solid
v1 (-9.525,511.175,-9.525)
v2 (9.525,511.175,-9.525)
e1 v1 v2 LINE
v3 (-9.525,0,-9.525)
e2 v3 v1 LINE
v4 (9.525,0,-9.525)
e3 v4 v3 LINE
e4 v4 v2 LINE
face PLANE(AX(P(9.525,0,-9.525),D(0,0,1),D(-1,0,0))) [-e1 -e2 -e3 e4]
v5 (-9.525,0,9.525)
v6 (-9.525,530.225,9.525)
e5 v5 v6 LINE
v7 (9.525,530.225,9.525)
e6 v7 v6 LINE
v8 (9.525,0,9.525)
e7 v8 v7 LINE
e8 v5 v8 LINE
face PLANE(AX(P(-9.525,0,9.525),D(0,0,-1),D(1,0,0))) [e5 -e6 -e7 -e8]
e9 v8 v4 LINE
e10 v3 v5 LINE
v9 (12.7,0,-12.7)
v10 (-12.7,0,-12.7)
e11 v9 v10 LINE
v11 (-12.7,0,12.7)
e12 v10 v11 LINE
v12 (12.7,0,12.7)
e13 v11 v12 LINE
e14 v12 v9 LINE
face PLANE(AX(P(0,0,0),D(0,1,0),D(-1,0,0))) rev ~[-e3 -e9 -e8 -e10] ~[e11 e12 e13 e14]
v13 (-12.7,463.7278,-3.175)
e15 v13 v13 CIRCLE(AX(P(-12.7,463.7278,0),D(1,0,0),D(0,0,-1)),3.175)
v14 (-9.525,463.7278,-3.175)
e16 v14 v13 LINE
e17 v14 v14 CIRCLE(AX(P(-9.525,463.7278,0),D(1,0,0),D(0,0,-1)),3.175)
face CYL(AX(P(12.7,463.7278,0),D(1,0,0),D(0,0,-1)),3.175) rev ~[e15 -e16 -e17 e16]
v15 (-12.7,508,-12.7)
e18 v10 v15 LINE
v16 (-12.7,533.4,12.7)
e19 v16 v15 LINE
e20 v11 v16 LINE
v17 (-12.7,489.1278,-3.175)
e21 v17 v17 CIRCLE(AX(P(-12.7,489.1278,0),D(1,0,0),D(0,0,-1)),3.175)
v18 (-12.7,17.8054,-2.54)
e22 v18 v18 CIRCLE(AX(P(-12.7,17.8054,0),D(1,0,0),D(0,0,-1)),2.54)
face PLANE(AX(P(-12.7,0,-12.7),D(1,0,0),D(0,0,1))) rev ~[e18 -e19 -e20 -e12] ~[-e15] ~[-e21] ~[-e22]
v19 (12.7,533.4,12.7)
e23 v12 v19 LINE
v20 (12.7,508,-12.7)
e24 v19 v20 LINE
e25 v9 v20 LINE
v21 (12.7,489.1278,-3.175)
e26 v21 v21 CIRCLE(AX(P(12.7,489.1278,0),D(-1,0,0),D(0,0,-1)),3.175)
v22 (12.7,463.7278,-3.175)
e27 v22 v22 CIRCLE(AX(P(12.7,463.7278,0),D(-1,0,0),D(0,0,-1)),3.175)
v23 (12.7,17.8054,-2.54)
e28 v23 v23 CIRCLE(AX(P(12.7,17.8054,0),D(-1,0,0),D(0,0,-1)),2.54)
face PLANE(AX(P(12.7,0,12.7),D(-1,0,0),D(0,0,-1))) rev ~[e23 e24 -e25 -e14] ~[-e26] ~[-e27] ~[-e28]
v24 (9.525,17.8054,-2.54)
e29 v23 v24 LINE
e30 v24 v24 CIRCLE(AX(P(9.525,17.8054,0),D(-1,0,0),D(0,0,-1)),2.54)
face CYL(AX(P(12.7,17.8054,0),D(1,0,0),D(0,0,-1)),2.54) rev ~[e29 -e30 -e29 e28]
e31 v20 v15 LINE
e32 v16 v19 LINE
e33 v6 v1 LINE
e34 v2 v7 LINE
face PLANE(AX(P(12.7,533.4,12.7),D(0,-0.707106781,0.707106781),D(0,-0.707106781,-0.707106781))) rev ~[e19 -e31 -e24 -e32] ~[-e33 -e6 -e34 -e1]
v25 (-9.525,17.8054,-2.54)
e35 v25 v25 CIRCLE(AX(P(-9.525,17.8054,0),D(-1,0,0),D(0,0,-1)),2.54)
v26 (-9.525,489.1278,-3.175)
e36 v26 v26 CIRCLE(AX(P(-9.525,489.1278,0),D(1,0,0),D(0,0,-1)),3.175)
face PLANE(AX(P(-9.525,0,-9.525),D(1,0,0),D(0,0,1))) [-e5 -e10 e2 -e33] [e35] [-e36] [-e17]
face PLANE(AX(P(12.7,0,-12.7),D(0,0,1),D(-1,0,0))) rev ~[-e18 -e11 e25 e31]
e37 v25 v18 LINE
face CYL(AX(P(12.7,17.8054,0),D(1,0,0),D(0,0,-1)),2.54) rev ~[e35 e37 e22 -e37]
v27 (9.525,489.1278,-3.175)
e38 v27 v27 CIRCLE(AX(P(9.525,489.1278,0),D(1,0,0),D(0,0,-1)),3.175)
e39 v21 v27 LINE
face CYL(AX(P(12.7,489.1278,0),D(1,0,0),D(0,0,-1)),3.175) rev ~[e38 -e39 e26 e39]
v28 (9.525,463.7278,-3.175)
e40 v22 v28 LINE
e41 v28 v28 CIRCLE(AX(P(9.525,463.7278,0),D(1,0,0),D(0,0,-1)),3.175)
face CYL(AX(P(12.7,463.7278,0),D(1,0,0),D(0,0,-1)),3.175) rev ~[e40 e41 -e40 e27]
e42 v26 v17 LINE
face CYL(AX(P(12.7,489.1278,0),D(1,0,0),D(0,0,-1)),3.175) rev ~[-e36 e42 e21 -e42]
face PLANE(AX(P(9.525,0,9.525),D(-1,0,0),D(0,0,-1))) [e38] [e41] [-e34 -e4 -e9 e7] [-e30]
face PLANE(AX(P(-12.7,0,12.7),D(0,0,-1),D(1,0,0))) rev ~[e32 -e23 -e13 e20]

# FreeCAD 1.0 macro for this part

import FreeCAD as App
import Part
import Sketcher
Q = App.Units.Quantity


def add_polygon(sketch, points):
    """Adds a closed chain of lines whose ends are joined by coincident constraints."""
    first, n = sketch.GeometryCount, len(points)
    for a, b in zip(points, points[1:] + points[:1]):
        sketch.addGeometry(Part.LineSegment(App.Vector(*a, 0), App.Vector(*b, 0)), False)
    for i in range(n):
        sketch.addConstraint(Sketcher.Constraint("Coincident", first + i, 2, first + (i + 1) % n, 1))

doc = App.newDocument("Part")
body = doc.addObject("PartDesign::Body", "Body")

# Sketch on XZ plane
sketch1 = doc.addObject("Sketcher::SketchObject", "Sketch")
body.addObject(sketch1)
sketch1.AttachmentSupport = (doc.XZ_Plane, [""])
sketch1.MapMode = "FlatFace"
add_polygon(sketch1, [(13, 13), (13, -13), (-13, -13), (-13, 13)])  # lines 0-3
add_polygon(sketch1, [(-10, -10), (10, -10), (10, 10), (-10, 10)])  # lines 4-7
sketch1.addConstraint(Sketcher.Constraint("Vertical", 0))
sketch1.addConstraint(Sketcher.Constraint("Horizontal", 1))
sketch1.addConstraint(Sketcher.Constraint("Vertical", 2))
sketch1.addConstraint(Sketcher.Constraint("Horizontal", 3))
sketch1.addConstraint(Sketcher.Constraint("Horizontal", 4))
sketch1.addConstraint(Sketcher.Constraint("Vertical", 5))
sketch1.addConstraint(Sketcher.Constraint("Horizontal", 6))
sketch1.addConstraint(Sketcher.Constraint("Vertical", 7))
sketch1.addConstraint(Sketcher.Constraint("Symmetric", 0, 2, 2, 2, -1, 1))
sketch1.addConstraint(Sketcher.Constraint("Symmetric", 4, 2, 6, 2, -1, 1))
sketch1.addConstraint(Sketcher.Constraint("Equal", 3, 0))
sketch1.addConstraint(Sketcher.Constraint("Equal", 6, 5))
sketch1.addConstraint(Sketcher.Constraint("DistanceX", 1, 2, 1, 1, Q("1 in")))
sketch1.addConstraint(Sketcher.Constraint("DistanceX", 4, 1, 4, 2, Q("0.75 in")))
pad1 = doc.addObject("PartDesign::Pad", "Pad")
body.addObject(pad1)
pad1.Profile = sketch1
pad1.Length = Q("21 in")
pad1.Reversed = True

# Sketch on YZ plane
sketch2 = doc.addObject("Sketcher::SketchObject", "Sketch001")
body.addObject(sketch2)
sketch2.AttachmentSupport = (doc.YZ_Plane, [""])
sketch2.MapMode = "FlatFace"
sketch2.AttachmentOffset = App.Placement(App.Vector(0, 0, 0.5 * 25.4), App.Rotation())
add_polygon(sketch2, [(533, 13), (508, -13), (533, -13)])  # lines 0-2
sketch2.addConstraint(Sketcher.Constraint("Horizontal", 1))
sketch2.addConstraint(Sketcher.Constraint("Vertical", 2))
sketch2.addConstraint(Sketcher.Constraint("Equal", 1, 2))
sketch2.addConstraint(Sketcher.Constraint("DistanceX", 1, 1, 1, 2, Q("1 in")))
sketch2.addConstraint(Sketcher.Constraint("DistanceX", -1, 1, 0, 2, Q("20 in")))
sketch2.addConstraint(Sketcher.Constraint("DistanceY", 0, 2, -1, 1, Q("0.5 in")))
pocket1 = doc.addObject("PartDesign::Pocket", "Pocket")
body.addObject(pocket1)
pocket1.Profile = sketch2
pocket1.Length = Q("1 in")

# Sketch on YZ plane
sketch3 = doc.addObject("Sketcher::SketchObject", "Sketch002")
body.addObject(sketch3)
sketch3.AttachmentSupport = (doc.YZ_Plane, [""])
sketch3.MapMode = "FlatFace"
sketch3.AttachmentOffset = App.Placement(App.Vector(0, 0, 0.5 * 25.4), App.Rotation())
sketch3.addGeometry(Part.Circle(App.Vector(17.8, 0, 0), App.Vector(0, 0, 1), 2.5), False)
sketch3.addConstraint(Sketcher.Constraint("PointOnObject", 0, 3, -1))
sketch3.addConstraint(Sketcher.Constraint("Diameter", 0, Q("0.2 in")))
sketch3.addConstraint(Sketcher.Constraint("DistanceX", -1, 1, 0, 3, Q("0.701 in")))
pocket2 = doc.addObject("PartDesign::Pocket", "Pocket001")
body.addObject(pocket2)
pocket2.Profile = sketch3
pocket2.Length = Q("1 in")

# Sketch on YZ plane
sketch4 = doc.addObject("Sketcher::SketchObject", "Sketch003")
body.addObject(sketch4)
sketch4.AttachmentSupport = (doc.YZ_Plane, [""])
sketch4.MapMode = "FlatFace"
sketch4.AttachmentOffset = App.Placement(App.Vector(0, 0, 0.5 * 25.4), App.Rotation())
sketch4.addGeometry(Part.Circle(App.Vector(463.7, 0, 0), App.Vector(0, 0, 1), 3.2), False)
sketch4.addGeometry(Part.Circle(App.Vector(489.1, 0, 0), App.Vector(0, 0, 1), 3.2), False)
sketch4.addConstraint(Sketcher.Constraint("Equal", 0, 1))
sketch4.addConstraint(Sketcher.Constraint("PointOnObject", 0, 3, -1))
sketch4.addConstraint(Sketcher.Constraint("PointOnObject", 1, 3, -1))
sketch4.addConstraint(Sketcher.Constraint("Diameter", 0, Q("0.25 in")))
sketch4.addConstraint(Sketcher.Constraint("DistanceX", 0, 3, 1, 3, Q("1 in")))
sketch4.addConstraint(Sketcher.Constraint("DistanceX", -1, 1, 0, 3, Q("18.257 in")))
pocket3 = doc.addObject("PartDesign::Pocket", "Pocket002")
body.addObject(pocket3)
pocket3.Profile = sketch4
pocket3.Length = Q("1 in")

doc.recompute()
